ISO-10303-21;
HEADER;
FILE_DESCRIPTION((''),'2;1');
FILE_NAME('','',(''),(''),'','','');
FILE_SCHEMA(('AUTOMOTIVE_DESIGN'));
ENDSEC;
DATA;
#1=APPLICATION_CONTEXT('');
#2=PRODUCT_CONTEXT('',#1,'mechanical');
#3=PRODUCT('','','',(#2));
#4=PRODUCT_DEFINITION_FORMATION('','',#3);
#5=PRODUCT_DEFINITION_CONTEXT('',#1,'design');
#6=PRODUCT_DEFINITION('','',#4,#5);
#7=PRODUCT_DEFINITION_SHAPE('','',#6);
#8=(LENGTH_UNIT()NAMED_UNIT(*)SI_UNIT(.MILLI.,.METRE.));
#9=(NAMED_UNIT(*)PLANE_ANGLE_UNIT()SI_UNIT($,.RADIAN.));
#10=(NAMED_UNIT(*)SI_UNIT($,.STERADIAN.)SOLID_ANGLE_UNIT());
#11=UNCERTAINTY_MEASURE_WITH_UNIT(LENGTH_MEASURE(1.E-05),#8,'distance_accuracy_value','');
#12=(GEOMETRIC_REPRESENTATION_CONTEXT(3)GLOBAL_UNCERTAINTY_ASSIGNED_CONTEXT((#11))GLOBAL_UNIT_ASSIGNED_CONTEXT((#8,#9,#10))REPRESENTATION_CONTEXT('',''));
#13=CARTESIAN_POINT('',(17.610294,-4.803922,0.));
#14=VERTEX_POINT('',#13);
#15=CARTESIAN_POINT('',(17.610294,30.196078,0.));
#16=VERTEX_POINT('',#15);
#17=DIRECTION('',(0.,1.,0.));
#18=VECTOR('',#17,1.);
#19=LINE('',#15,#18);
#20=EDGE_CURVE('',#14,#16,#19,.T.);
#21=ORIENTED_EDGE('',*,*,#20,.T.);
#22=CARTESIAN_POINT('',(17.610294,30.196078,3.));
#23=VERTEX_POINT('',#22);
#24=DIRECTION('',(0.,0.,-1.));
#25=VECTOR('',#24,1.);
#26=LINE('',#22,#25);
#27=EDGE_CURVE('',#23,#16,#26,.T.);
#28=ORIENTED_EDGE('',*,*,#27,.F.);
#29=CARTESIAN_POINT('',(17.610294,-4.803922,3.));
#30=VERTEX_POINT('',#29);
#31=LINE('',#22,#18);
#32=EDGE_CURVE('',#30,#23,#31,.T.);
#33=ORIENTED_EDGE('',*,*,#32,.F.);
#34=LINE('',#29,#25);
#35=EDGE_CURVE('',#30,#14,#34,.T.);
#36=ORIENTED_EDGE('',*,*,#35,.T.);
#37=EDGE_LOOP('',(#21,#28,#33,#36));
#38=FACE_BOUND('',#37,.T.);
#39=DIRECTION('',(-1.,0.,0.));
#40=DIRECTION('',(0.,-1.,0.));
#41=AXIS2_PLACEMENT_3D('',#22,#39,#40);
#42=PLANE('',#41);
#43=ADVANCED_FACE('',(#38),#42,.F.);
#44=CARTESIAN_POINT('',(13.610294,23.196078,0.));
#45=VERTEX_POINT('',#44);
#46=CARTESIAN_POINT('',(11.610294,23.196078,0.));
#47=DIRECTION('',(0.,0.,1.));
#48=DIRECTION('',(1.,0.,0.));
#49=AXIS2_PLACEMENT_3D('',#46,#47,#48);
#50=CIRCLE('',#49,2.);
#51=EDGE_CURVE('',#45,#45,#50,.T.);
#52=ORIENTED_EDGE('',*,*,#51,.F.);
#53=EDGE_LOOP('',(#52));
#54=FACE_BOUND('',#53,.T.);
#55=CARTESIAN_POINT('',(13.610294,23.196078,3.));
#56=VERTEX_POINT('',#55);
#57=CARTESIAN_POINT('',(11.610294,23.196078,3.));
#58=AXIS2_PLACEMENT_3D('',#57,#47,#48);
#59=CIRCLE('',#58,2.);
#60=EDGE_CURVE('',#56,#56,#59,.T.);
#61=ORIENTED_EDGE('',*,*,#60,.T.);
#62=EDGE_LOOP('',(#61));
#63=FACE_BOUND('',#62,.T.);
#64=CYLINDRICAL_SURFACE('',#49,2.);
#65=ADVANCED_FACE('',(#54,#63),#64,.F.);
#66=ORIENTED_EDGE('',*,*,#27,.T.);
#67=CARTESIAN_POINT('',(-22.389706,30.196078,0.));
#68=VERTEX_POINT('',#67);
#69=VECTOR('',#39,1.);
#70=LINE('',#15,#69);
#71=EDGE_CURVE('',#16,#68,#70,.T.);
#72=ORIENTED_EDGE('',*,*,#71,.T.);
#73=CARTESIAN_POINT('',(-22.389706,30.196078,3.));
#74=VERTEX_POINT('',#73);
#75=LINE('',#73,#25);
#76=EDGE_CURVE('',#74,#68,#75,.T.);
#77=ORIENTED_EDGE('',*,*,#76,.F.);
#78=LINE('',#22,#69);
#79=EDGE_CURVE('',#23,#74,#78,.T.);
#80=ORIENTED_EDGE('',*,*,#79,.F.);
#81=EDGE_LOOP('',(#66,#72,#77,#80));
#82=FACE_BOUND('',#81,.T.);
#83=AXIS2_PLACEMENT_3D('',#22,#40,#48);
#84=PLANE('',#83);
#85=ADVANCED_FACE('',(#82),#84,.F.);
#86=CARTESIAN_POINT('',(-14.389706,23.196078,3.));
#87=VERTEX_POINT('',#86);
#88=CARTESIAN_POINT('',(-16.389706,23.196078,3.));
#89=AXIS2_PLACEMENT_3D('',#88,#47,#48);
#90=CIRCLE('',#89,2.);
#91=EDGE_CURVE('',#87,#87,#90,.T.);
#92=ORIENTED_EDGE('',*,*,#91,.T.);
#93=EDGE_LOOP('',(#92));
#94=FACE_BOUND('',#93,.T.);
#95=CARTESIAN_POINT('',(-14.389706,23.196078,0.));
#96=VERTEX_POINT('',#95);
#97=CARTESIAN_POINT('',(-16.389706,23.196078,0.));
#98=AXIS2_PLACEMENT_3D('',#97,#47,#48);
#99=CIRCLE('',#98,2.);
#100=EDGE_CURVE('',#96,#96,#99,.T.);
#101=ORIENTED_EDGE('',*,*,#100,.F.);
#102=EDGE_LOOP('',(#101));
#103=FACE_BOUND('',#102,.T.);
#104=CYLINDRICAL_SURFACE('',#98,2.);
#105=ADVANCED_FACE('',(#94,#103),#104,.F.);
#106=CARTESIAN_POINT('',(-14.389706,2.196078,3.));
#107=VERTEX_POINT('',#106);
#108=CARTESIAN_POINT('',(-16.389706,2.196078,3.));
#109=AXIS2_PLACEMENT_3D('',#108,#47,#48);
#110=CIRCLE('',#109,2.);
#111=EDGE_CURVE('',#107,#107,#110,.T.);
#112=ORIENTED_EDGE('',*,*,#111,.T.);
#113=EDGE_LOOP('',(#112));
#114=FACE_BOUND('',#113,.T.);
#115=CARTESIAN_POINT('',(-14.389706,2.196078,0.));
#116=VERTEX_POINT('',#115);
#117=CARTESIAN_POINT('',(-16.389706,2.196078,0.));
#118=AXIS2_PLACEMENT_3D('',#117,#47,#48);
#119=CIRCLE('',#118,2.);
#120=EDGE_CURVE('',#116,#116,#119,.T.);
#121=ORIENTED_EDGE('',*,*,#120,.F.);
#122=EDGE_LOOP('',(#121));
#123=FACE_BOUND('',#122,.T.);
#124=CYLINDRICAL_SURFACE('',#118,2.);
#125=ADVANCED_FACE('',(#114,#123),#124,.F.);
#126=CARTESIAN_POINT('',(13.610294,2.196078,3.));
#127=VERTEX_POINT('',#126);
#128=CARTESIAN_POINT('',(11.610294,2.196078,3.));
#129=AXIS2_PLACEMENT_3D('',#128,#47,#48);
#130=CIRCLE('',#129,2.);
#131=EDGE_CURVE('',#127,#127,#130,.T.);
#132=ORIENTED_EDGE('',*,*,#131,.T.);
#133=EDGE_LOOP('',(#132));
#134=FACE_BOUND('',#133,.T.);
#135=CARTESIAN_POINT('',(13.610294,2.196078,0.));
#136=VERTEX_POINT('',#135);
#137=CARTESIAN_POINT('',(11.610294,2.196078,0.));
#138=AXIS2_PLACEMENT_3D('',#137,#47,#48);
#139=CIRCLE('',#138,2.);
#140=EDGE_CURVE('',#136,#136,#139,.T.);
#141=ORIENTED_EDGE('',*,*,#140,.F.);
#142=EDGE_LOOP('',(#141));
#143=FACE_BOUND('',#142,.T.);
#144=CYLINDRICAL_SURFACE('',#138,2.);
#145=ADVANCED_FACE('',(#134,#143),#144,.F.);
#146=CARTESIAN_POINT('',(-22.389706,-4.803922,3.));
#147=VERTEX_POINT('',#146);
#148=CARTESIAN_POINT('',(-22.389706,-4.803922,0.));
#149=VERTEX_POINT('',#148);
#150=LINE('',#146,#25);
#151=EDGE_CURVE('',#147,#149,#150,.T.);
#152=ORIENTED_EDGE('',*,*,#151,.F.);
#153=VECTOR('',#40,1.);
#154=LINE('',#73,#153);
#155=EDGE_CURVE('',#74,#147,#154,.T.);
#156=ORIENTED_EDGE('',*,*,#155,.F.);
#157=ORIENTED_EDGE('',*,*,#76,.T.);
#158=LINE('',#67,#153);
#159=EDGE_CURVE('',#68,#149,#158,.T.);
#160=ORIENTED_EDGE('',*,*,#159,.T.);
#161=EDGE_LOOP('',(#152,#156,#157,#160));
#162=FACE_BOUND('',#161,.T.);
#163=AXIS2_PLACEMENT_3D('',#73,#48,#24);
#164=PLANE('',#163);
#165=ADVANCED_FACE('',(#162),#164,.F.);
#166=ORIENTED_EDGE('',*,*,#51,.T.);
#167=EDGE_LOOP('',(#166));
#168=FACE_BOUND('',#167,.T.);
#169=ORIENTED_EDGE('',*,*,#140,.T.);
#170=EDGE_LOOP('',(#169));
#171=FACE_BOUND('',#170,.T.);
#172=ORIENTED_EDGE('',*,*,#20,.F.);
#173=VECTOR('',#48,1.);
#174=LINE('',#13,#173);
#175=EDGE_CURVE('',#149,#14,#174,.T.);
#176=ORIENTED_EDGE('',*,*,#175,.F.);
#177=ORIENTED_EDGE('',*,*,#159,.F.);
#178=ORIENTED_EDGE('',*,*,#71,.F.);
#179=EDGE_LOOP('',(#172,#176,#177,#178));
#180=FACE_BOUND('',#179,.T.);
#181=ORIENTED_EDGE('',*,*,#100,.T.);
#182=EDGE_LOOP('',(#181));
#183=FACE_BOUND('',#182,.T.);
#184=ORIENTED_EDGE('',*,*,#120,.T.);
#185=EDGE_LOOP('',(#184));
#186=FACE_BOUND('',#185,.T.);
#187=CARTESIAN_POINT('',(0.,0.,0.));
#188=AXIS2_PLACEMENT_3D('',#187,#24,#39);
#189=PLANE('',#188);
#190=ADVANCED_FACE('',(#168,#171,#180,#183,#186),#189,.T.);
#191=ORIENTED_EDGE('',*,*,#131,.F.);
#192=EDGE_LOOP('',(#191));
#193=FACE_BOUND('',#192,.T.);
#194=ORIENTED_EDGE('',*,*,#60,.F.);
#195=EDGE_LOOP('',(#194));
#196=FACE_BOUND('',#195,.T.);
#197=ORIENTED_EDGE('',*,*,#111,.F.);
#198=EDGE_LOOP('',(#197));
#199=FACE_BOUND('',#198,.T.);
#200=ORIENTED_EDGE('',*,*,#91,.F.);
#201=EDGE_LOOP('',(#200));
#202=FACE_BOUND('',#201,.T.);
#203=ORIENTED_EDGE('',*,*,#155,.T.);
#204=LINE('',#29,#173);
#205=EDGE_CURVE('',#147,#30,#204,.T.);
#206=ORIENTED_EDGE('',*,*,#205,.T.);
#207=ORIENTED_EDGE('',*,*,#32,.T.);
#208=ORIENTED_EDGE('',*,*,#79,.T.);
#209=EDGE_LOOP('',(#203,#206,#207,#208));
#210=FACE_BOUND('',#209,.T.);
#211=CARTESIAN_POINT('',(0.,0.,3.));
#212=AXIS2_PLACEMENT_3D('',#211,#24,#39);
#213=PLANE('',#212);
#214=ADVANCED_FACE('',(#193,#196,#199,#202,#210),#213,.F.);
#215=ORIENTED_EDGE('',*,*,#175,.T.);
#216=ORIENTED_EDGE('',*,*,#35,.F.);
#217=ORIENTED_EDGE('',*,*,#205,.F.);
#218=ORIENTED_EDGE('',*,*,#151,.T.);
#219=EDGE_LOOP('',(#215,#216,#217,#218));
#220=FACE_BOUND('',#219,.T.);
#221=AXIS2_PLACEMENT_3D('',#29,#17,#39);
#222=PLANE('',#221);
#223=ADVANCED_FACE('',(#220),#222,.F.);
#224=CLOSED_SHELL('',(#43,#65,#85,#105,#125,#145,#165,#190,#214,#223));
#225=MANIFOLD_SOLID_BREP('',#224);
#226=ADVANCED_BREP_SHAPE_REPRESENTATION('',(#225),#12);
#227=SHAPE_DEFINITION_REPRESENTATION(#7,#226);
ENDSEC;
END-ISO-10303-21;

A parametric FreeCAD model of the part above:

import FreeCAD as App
import Part
import Sketcher
from FreeCAD import Vector

doc = App.newDocument("Part")
body = doc.addObject("PartDesign::Body", "Body")

sketch1 = body.newObject("Sketcher::SketchObject", "Sketch")
sketch1.AttachmentSupport = (doc.getObject("XY_Plane"), [""])
sketch1.MapMode = "FlatFace"
sketch1.addGeometry(Part.LineSegment(Vector(-22, 30, 0), Vector(-22, -5, 0)), False)
sketch1.addGeometry(Part.LineSegment(Vector(-22, -5, 0), Vector(18, -5, 0)), False)
sketch1.addGeometry(Part.LineSegment(Vector(18, -5, 0), Vector(18, 30, 0)), False)
sketch1.addGeometry(Part.LineSegment(Vector(18, 30, 0), Vector(-22, 30, 0)), False)
sketch1.addConstraint(Sketcher.Constraint("Coincident", 0, 2, 1, 1))
sketch1.addConstraint(Sketcher.Constraint("Coincident", 1, 2, 2, 1))
sketch1.addConstraint(Sketcher.Constraint("Coincident", 2, 2, 3, 1))
sketch1.addConstraint(Sketcher.Constraint("Coincident", 3, 2, 0, 1))
sketch1.addConstraint(Sketcher.Constraint("Vertical", 0))
sketch1.addConstraint(Sketcher.Constraint("Horizontal", 1))
sketch1.addConstraint(Sketcher.Constraint("Vertical", 2))
sketch1.addConstraint(Sketcher.Constraint("Horizontal", 3))
sketch1.addConstraint(Sketcher.Constraint("DistanceX", 1, 1, 1, 2, 40.0))
sketch1.addConstraint(Sketcher.Constraint("DistanceY", 0, 2, 0, 1, 35.0))
sketch1.addConstraint(Sketcher.Constraint("DistanceY", 0, 2, -1, 1, 4.803922))
sketch1.addConstraint(Sketcher.Constraint("DistanceX", 0, 2, -1, 1, 22.389706))
pad1 = body.newObject("PartDesign::Pad", "Pad")
pad1.Profile = sketch1
pad1.Length = 3

sketch2 = body.newObject("Sketcher::SketchObject", "Sketch001")
sketch2.AttachmentSupport = (doc.getObject("XY_Plane"), [""])
sketch2.MapMode = "FlatFace"
sketch2.AttachmentOffset = App.Placement(Vector(0, 0, 3), App.Rotation())
sketch2.addGeometry(Part.Circle(Vector(-16.4, 23.2, 0), Vector(0, 0, 1), 2), False)
sketch2.addGeometry(Part.Circle(Vector(-16.4, 2.2, 0), Vector(0, 0, 1), 2), False)
sketch2.addGeometry(Part.Circle(Vector(11.6, 2.2, 0), Vector(0, 0, 1), 2), False)
sketch2.addGeometry(Part.Circle(Vector(11.6, 23.2, 0), Vector(0, 0, 1), 2), False)
sketch2.addConstraint(Sketcher.Constraint("Equal", 0, 1))
sketch2.addConstraint(Sketcher.Constraint("Equal", 1, 2))
sketch2.addConstraint(Sketcher.Constraint("Equal", 2, 3))
sketch2.addConstraint(Sketcher.Constraint("Horizontal", 1, 3, 2, 3))
sketch2.addConstraint(Sketcher.Constraint("Horizontal", 0, 3, 3, 3))
sketch2.addConstraint(Sketcher.Constraint("Vertical", 0, 3, 1, 3))
sketch2.addConstraint(Sketcher.Constraint("Vertical", 2, 3, 3, 3))
sketch2.addConstraint(Sketcher.Constraint("Diameter", 0, 4.0))
sketch2.addConstraint(Sketcher.Constraint("DistanceY", 1, 3, 0, 3, 21.0))
sketch2.addConstraint(Sketcher.Constraint("DistanceX", 1, 3, 2, 3, 28.0))
sketch2.addConstraint(Sketcher.Constraint("DistanceY", -1, 1, 0, 3, 23.196078))
sketch2.addConstraint(Sketcher.Constraint("DistanceX", 0, 3, -1, 1, 16.389706))
pocket1 = body.newObject("PartDesign::Pocket", "Pocket")
pocket1.Profile = sketch2
pocket1.Length = 3

doc.recompute()
